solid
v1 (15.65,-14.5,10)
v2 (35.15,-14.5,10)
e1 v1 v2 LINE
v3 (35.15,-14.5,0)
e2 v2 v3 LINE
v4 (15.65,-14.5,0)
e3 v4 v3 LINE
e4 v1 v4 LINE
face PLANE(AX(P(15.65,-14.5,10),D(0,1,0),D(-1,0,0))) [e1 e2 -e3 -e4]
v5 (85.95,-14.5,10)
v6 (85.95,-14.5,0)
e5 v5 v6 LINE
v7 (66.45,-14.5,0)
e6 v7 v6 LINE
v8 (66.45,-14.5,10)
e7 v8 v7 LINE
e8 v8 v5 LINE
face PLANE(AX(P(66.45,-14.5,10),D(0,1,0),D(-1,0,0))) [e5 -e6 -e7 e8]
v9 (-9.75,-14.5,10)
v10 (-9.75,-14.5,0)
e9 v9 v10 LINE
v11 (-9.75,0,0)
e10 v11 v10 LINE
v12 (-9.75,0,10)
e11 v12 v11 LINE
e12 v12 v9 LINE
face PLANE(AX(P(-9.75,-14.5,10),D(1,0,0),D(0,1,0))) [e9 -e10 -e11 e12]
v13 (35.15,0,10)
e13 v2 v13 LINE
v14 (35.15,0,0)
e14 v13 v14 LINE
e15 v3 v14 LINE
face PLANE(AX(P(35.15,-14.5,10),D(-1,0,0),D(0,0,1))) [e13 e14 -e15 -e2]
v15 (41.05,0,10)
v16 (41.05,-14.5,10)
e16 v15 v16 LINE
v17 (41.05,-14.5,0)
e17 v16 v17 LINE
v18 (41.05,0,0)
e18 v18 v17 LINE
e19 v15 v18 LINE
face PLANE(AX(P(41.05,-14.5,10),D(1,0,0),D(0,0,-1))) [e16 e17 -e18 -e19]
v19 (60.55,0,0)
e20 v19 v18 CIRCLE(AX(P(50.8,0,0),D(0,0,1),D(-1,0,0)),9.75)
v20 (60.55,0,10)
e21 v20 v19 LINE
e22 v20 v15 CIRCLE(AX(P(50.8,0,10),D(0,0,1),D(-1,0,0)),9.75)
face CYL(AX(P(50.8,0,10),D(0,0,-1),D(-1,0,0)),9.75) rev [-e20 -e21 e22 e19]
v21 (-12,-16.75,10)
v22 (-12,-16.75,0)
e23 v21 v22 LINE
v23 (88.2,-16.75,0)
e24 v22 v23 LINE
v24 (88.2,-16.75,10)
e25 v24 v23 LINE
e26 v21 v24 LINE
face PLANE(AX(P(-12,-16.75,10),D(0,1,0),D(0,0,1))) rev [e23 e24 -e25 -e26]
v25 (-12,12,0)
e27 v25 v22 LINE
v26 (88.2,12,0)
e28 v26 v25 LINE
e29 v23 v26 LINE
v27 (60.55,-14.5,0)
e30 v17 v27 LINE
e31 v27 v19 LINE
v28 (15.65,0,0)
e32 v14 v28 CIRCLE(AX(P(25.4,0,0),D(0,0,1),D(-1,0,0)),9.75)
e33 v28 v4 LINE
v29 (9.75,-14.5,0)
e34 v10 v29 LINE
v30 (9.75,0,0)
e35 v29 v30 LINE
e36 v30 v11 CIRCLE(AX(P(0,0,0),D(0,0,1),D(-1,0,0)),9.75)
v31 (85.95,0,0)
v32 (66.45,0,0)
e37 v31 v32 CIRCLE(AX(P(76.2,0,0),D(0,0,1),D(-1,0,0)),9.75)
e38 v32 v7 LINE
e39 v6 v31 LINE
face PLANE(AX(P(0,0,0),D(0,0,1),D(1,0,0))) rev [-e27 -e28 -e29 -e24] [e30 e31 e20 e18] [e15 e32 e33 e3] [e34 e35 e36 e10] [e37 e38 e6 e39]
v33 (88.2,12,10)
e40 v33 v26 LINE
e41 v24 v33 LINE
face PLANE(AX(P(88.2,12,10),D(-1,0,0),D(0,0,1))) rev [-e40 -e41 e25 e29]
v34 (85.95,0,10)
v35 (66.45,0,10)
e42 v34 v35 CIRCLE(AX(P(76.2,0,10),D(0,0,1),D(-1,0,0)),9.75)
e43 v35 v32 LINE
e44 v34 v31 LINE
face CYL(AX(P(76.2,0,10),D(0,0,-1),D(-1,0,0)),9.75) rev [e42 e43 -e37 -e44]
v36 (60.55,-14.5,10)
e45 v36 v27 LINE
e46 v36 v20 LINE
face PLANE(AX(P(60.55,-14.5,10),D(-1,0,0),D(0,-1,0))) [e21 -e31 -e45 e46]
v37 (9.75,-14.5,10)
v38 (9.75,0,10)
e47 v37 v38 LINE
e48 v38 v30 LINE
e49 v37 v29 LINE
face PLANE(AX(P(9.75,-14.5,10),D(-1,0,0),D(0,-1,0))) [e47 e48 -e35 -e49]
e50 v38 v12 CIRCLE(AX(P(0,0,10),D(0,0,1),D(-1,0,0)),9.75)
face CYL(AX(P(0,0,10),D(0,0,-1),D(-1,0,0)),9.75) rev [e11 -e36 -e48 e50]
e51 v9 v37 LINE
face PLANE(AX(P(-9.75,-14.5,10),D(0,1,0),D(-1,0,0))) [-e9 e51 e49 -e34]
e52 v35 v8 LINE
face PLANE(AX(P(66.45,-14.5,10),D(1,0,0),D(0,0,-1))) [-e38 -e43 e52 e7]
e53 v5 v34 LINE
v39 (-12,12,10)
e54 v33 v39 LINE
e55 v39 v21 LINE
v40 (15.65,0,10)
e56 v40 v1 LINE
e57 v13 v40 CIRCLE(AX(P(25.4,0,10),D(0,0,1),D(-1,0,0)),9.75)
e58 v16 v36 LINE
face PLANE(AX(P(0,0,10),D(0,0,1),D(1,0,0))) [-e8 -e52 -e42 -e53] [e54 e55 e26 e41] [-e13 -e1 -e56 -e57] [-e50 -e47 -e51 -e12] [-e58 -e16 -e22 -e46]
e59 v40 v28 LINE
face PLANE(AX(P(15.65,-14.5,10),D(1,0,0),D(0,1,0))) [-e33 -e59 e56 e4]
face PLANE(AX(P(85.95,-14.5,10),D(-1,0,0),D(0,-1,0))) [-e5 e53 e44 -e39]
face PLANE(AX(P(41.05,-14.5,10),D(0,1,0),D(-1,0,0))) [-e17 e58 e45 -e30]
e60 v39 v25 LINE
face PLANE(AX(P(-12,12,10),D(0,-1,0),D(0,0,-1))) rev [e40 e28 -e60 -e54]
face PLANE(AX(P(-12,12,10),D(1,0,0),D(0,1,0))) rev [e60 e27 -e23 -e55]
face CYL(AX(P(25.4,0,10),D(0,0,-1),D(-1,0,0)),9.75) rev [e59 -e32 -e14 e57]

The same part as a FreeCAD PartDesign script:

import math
import FreeCAD as App
import Part
import Sketcher

doc = App.newDocument("Part")
body = doc.addObject("PartDesign::Body", "Body")

sketch1 = body.newObject("Sketcher::SketchObject", "Sketch")
sketch1.AttachmentSupport = (doc.getObject("XY_Plane"), [""])
sketch1.MapMode = "FlatFace"
sketch1.addGeometry(Part.LineSegment(App.Vector(-12, 12, 0), App.Vector(-12, -17, 0)), False)
sketch1.addGeometry(Part.LineSegment(App.Vector(-12, -17, 0), App.Vector(88, -17, 0)), False)
sketch1.addGeometry(Part.LineSegment(App.Vector(88, -17, 0), App.Vector(88, 12, 0)), False)
sketch1.addGeometry(Part.LineSegment(App.Vector(88, 12, 0), App.Vector(-12, 12, 0)), False)
sketch1.addGeometry(Part.LineSegment(App.Vector(10, -14, 0), App.Vector(-10, -14, 0)), False)
sketch1.addGeometry(Part.LineSegment(App.Vector(-10, -14, 0), App.Vector(-10, 0, 0)), False)
sketch1.addGeometry(Part.ArcOfCircle(Part.Circle(App.Vector(0, 0, 0), App.Vector(0, 0, 1), 10), math.radians(0), math.radians(180)), False)
sketch1.addGeometry(Part.LineSegment(App.Vector(10, 0, 0), App.Vector(10, -14, 0)), False)
sketch1.addGeometry(Part.LineSegment(App.Vector(35, -14, 0), App.Vector(16, -14, 0)), False)
sketch1.addGeometry(Part.LineSegment(App.Vector(16, -14, 0), App.Vector(16, 0, 0)), False)
sketch1.addGeometry(Part.ArcOfCircle(Part.Circle(App.Vector(25, 0, 0), App.Vector(0, 0, 1), 10), math.radians(0), math.radians(180)), False)
sketch1.addGeometry(Part.LineSegment(App.Vector(35, 0, 0), App.Vector(35, -14, 0)), False)
sketch1.addGeometry(Part.LineSegment(App.Vector(61, -14, 0), App.Vector(41, -14, 0)), False)
sketch1.addGeometry(Part.LineSegment(App.Vector(41, -14, 0), App.Vector(41, 0, 0)), False)
sketch1.addGeometry(Part.ArcOfCircle(Part.Circle(App.Vector(51, 0, 0), App.Vector(0, 0, 1), 10), math.radians(0), math.radians(180)), False)
sketch1.addGeometry(Part.LineSegment(App.Vector(61, 0, 0), App.Vector(61, -14, 0)), False)
sketch1.addGeometry(Part.LineSegment(App.Vector(86, -14, 0), App.Vector(66, -14, 0)), False)
sketch1.addGeometry(Part.LineSegment(App.Vector(66, -14, 0), App.Vector(66, 0, 0)), False)
sketch1.addGeometry(Part.ArcOfCircle(Part.Circle(App.Vector(76, 0, 0), App.Vector(0, 0, 1), 10), math.radians(0), math.radians(180)), False)
sketch1.addGeometry(Part.LineSegment(App.Vector(86, 0, 0), App.Vector(86, -14, 0)), False)
sketch1.addConstraint(Sketcher.Constraint("Coincident", 0, 2, 1, 1))
sketch1.addConstraint(Sketcher.Constraint("Coincident", 1, 2, 2, 1))
sketch1.addConstraint(Sketcher.Constraint("Coincident", 2, 2, 3, 1))
sketch1.addConstraint(Sketcher.Constraint("Coincident", 3, 2, 0, 1))
sketch1.addConstraint(Sketcher.Constraint("Coincident", 4, 2, 5, 1))
sketch1.addConstraint(Sketcher.Constraint("Tangent", 5, 2, 6, 2))
sketch1.addConstraint(Sketcher.Constraint("Tangent", 6, 1, 7, 1))
sketch1.addConstraint(Sketcher.Constraint("Coincident", 7, 2, 4, 1))
sketch1.addConstraint(Sketcher.Constraint("Coincident", 8, 2, 9, 1))
sketch1.addConstraint(Sketcher.Constraint("Tangent", 9, 2, 10, 2))
sketch1.addConstraint(Sketcher.Constraint("Tangent", 10, 1, 11, 1))
sketch1.addConstraint(Sketcher.Constraint("Coincident", 11, 2, 8, 1))
sketch1.addConstraint(Sketcher.Constraint("Coincident", 12, 2, 13, 1))
sketch1.addConstraint(Sketcher.Constraint("Tangent", 13, 2, 14, 2))
sketch1.addConstraint(Sketcher.Constraint("Tangent", 14, 1, 15, 1))
sketch1.addConstraint(Sketcher.Constraint("Coincident", 15, 2, 12, 1))
sketch1.addConstraint(Sketcher.Constraint("Coincident", 16, 2, 17, 1))
sketch1.addConstraint(Sketcher.Constraint("Tangent", 17, 2, 18, 2))
sketch1.addConstraint(Sketcher.Constraint("Tangent", 18, 1, 19, 1))
sketch1.addConstraint(Sketcher.Constraint("Coincident", 19, 2, 16, 1))
sketch1.addConstraint(Sketcher.Constraint("Vertical", 0))
sketch1.addConstraint(Sketcher.Constraint("Horizontal", 1))
sketch1.addConstraint(Sketcher.Constraint("Vertical", 2))
sketch1.addConstraint(Sketcher.Constraint("Horizontal", 3))
sketch1.addConstraint(Sketcher.Constraint("Horizontal", 4))
sketch1.addConstraint(Sketcher.Constraint("Vertical", 5))
sketch1.addConstraint(Sketcher.Constraint("Vertical", 7))
sketch1.addConstraint(Sketcher.Constraint("Horizontal", 8))
sketch1.addConstraint(Sketcher.Constraint("Vertical", 9))
sketch1.addConstraint(Sketcher.Constraint("Vertical", 11))
sketch1.addConstraint(Sketcher.Constraint("Horizontal", 12))
sketch1.addConstraint(Sketcher.Constraint("Vertical", 13))
sketch1.addConstraint(Sketcher.Constraint("Vertical", 15))
sketch1.addConstraint(Sketcher.Constraint("Horizontal", 16))
sketch1.addConstraint(Sketcher.Constraint("Vertical", 17))
sketch1.addConstraint(Sketcher.Constraint("Vertical", 19))
sketch1.addConstraint(Sketcher.Constraint("Coincident", 6, 3, -1, 1))
sketch1.addConstraint(Sketcher.Constraint("Equal", 6, 10))
sketch1.addConstraint(Sketcher.Constraint("Equal", 10, 14))
sketch1.addConstraint(Sketcher.Constraint("Equal", 14, 18))
sketch1.addConstraint(Sketcher.Constraint("PointOnObject", 10, 3, -1))
sketch1.addConstraint(Sketcher.Constraint("PointOnObject", 14, 3, -1))
sketch1.addConstraint(Sketcher.Constraint("PointOnObject", 18, 3, -1))
sketch1.addConstraint(Sketcher.Constraint("Horizontal", 7, 2, 8, 2))
sketch1.addConstraint(Sketcher.Constraint("Horizontal", 11, 2, 12, 2))
sketch1.addConstraint(Sketcher.Constraint("Horizontal", 15, 2, 16, 2))
sketch1.addConstraint(Sketcher.Constraint("Radius", 6, 9.75))
sketch1.addConstraint(Sketcher.Constraint("DistanceX", 1, 1, 1, 2, 100.2))
sketch1.addConstraint(Sketcher.Constraint("DistanceY", 5, 1, 5, 2, 14.5))
sketch1.addConstraint(Sketcher.Constraint("DistanceX", 0, 2, -1, 1, 12.0))
sketch1.addConstraint(Sketcher.Constraint("DistanceY", -1, 1, 2, 2, 12.0))
sketch1.addConstraint(Sketcher.Constraint("DistanceX", 18, 3, 1, 2, 12.0))
sketch1.addConstraint(Sketcher.Constraint("DistanceY", 0, 2, 0, 1, 28.75))
sketch1.addConstraint(Sketcher.Constraint("DistanceX", -1, 1, 10, 3, 25.4))
sketch1.addConstraint(Sketcher.Constraint("DistanceX", -1, 1, 14, 3, 50.8))
pad1 = body.newObject("PartDesign::Pad", "Pad")
pad1.Profile = sketch1
pad1.Length = 10

doc.recompute()
